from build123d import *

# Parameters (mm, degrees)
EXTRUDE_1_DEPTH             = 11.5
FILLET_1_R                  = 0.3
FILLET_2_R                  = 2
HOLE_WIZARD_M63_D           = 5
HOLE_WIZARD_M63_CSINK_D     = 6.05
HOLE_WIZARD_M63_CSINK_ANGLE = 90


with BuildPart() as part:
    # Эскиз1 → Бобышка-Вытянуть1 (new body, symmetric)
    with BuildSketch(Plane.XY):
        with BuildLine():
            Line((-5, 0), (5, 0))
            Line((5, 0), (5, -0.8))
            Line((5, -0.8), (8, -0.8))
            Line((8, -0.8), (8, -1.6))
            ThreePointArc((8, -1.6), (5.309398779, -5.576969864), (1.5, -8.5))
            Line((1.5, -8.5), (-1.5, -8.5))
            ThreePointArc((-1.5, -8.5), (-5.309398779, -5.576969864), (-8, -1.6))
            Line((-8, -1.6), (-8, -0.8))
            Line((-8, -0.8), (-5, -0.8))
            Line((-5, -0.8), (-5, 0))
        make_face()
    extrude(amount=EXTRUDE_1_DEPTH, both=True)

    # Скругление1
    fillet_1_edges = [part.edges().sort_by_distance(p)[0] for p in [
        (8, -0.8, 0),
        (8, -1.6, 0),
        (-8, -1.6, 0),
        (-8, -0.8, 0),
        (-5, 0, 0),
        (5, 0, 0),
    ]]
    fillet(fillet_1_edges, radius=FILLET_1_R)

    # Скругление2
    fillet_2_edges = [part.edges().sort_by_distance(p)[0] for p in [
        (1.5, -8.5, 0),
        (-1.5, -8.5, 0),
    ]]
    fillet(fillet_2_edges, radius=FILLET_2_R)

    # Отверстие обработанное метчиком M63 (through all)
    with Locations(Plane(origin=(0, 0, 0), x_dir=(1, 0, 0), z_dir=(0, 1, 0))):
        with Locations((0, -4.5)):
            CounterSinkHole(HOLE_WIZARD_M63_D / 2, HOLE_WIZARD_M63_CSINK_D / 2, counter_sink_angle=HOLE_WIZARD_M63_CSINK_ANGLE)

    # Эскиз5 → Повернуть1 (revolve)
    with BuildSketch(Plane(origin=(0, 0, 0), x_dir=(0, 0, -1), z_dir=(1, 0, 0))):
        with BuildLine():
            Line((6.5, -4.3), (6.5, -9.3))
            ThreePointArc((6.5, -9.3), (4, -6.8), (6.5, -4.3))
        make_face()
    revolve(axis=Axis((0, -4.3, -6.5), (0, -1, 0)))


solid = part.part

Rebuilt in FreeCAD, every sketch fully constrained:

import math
import FreeCAD as App
import Part
import Sketcher

V = App.Vector
Q = App.Units.Quantity


def edges_at(feature, points):
    """Names of the edges that pass closest to the given points."""
    edges = feature.Shape.Edges
    near = lambda p: min(range(len(edges)), key=lambda i: edges[i].distToShape(Part.Vertex(*p))[0])
    return sorted({f"Edge{near(p) + 1}" for p in points})

doc = App.newDocument("Part")
body = doc.addObject("PartDesign::Body", "Body")

# Sketch on XY plane
sketch1 = body.newObject("Sketcher::SketchObject", "Sketch")
sketch1.AttachmentSupport = (doc.getObject("XY_Plane"), [""])
sketch1.MapMode = "FlatFace"
sketch1.addGeometry([
    Part.LineSegment(V(5, 0, 0), V(-5, 0, 0)),  # 0
    Part.LineSegment(V(-5, 0, 0), V(-5, -0.8, 0)),  # 1
    Part.LineSegment(V(-5, -0.8, 0), V(-8, -0.8, 0)),  # 2
    Part.LineSegment(V(-8, -0.8, 0), V(-8, -1.6, 0)),  # 3
    Part.ArcOfCircle(Part.Circle(V(5.6, 4.7, 0), V(0, 0, 1), 15), math.radians(-155), math.radians(-118)),  # 4
    Part.LineSegment(V(-1.5, -8.5, 0), V(1.5, -8.5, 0)),  # 5
    Part.ArcOfCircle(Part.Circle(V(-5.6, 4.7, 0), V(0, 0, 1), 15), math.radians(-62), math.radians(-25)),  # 6
    Part.LineSegment(V(8, -1.6, 0), V(8, -0.8, 0)),  # 7
    Part.LineSegment(V(8, -0.8, 0), V(5, -0.8, 0)),  # 8
    Part.LineSegment(V(5, -0.8, 0), V(5, 0, 0)),  # 9
], False)
sketch1.addConstraint([
    Sketcher.Constraint("Coincident", 0, 2, 1, 1),
    Sketcher.Constraint("Coincident", 1, 2, 2, 1),
    Sketcher.Constraint("Coincident", 2, 2, 3, 1),
    Sketcher.Constraint("Coincident", 3, 2, 4, 1),
    Sketcher.Constraint("Coincident", 4, 2, 5, 1),
    Sketcher.Constraint("Coincident", 5, 2, 6, 1),
    Sketcher.Constraint("Coincident", 6, 2, 7, 1),
    Sketcher.Constraint("Coincident", 7, 2, 8, 1),
    Sketcher.Constraint("Coincident", 8, 2, 9, 1),
    Sketcher.Constraint("Coincident", 9, 2, 0, 1),
    Sketcher.Constraint("Horizontal", 0),
    Sketcher.Constraint("Vertical", 1),
    Sketcher.Constraint("Horizontal", 2),
    Sketcher.Constraint("Vertical", 3),
    Sketcher.Constraint("Horizontal", 5),
    Sketcher.Constraint("Vertical", 7),
    Sketcher.Constraint("Horizontal", 8),
    Sketcher.Constraint("Vertical", 9),
    Sketcher.Constraint("Equal", 4, 6),
    Sketcher.Constraint("Symmetric", 0, 2, 9, 2, -1, 1),
    Sketcher.Constraint("Symmetric", 4, 3, 6, 3, -2),
    Sketcher.Constraint("Symmetric", 2, 2, 7, 2, -2),
    Sketcher.Constraint("Equal", 2, 5),
    Sketcher.Constraint("Equal", 1, 3),
    Sketcher.Constraint("Radius", 4, Q("15 mm")),
    Sketcher.Constraint("DistanceX", 0, 2, 0, 1, Q("10 mm")),
    Sketcher.Constraint("DistanceX", 2, 2, 2, 1, Q("3 mm")),
    Sketcher.Constraint("DistanceY", 1, 2, 1, 1, Q("0.8 mm")),
    Sketcher.Constraint("DistanceY", 4, 2, -1, 1, Q("8.5 mm")),
])
pad1 = body.newObject("PartDesign::Pad", "Pad")
pad1.Profile = sketch1
pad1.Length = 23
pad1.Midplane = True
doc.recompute()

fillet = body.newObject("PartDesign::Fillet", "Fillet")
fillet.Base = (pad1, edges_at(pad1, [
    (8, -0.8, 0),
    (8, -1.6, 0),
    (-8, -1.6, 0),
    (-8, -0.8, 0),
    (-5, 0, 0),
    (5, 0, 0),
]))
fillet.Radius = 0.3
doc.recompute()

fillet2 = body.newObject("PartDesign::Fillet", "Fillet001")
fillet2.Base = (fillet, edges_at(fillet, [(1.5, -8.5, 0), (-1.5, -8.5, 0)]))
fillet2.Radius = 2

# Sketch on XZ plane
sketch2 = body.newObject("Sketcher::SketchObject", "Sketch001")
sketch2.AttachmentSupport = (doc.getObject("XZ_Plane"), [""])
sketch2.MapMode = "FlatFace"
sketch2.addGeometry(Part.Circle(V(0, 4.5, 0), V(0, 0, 1), 2.5), False)
sketch2.addConstraint([
    Sketcher.Constraint("PointOnObject", 0, 3, -2),
    Sketcher.Constraint("Diameter", 0, Q("5 mm")),
    Sketcher.Constraint("DistanceY", -1, 1, 0, 3, Q("4.5 mm")),
])
doc.recompute()
hole = body.newObject("PartDesign::Hole", "Hole")
hole.Profile = sketch2
hole.ThreadType = "None"
hole.Diameter = 5
hole.DepthType = "ThroughAll"
hole.HoleCutType = "Countersink"
hole.HoleCutDiameter = 6.05
hole.HoleCutCountersinkAngle = 90
hole.Reversed = True

# Sketch on YZ plane
sketch3 = body.newObject("Sketcher::SketchObject", "Sketch002")
sketch3.AttachmentSupport = (doc.getObject("YZ_Plane"), [""])
sketch3.MapMode = "FlatFace"
sketch3.addGeometry([
    Part.LineSegment(V(-9.3, -6.5, 0), V(-4.3, -6.5, 0)),
    Part.ArcOfCircle(Part.Circle(V(-6.8, -6.5, 0), V(0, 0, 1), 2.5), math.radians(0), math.radians(180)),
], False)
sketch3.addGeometry(Part.LineSegment(V(-4.3, -6.5, 0), V(-9.3, -6.5, 0)), True)  # axis
sketch3.addConstraint([
    Sketcher.Constraint("Coincident", 0, 1, 1, 2),
    Sketcher.Constraint("Coincident", 1, 1, 0, 2),
    Sketcher.Constraint("Horizontal", 0),
    Sketcher.Constraint("Horizontal", 2),
    Sketcher.Constraint("Coincident", 2, 1, 1, 1),
    Sketcher.Constraint("Horizontal", 1, 3, 0, 1),
    Sketcher.Constraint("Equal", 0, 2),
    Sketcher.Constraint("Radius", 1, Q("2.5 mm")),
    Sketcher.Constraint("DistanceX", 1, 3, -1, 1, Q("6.8 mm")),
    Sketcher.Constraint("DistanceY", 1, 3, -1, 1, Q("6.5 mm")),
])
revolution = body.newObject("PartDesign::Revolution", "Revolution")
revolution.Profile = sketch3
revolution.ReferenceAxis = (sketch3, ["Axis0"])
revolution.Angle = 360

doc.recompute()
